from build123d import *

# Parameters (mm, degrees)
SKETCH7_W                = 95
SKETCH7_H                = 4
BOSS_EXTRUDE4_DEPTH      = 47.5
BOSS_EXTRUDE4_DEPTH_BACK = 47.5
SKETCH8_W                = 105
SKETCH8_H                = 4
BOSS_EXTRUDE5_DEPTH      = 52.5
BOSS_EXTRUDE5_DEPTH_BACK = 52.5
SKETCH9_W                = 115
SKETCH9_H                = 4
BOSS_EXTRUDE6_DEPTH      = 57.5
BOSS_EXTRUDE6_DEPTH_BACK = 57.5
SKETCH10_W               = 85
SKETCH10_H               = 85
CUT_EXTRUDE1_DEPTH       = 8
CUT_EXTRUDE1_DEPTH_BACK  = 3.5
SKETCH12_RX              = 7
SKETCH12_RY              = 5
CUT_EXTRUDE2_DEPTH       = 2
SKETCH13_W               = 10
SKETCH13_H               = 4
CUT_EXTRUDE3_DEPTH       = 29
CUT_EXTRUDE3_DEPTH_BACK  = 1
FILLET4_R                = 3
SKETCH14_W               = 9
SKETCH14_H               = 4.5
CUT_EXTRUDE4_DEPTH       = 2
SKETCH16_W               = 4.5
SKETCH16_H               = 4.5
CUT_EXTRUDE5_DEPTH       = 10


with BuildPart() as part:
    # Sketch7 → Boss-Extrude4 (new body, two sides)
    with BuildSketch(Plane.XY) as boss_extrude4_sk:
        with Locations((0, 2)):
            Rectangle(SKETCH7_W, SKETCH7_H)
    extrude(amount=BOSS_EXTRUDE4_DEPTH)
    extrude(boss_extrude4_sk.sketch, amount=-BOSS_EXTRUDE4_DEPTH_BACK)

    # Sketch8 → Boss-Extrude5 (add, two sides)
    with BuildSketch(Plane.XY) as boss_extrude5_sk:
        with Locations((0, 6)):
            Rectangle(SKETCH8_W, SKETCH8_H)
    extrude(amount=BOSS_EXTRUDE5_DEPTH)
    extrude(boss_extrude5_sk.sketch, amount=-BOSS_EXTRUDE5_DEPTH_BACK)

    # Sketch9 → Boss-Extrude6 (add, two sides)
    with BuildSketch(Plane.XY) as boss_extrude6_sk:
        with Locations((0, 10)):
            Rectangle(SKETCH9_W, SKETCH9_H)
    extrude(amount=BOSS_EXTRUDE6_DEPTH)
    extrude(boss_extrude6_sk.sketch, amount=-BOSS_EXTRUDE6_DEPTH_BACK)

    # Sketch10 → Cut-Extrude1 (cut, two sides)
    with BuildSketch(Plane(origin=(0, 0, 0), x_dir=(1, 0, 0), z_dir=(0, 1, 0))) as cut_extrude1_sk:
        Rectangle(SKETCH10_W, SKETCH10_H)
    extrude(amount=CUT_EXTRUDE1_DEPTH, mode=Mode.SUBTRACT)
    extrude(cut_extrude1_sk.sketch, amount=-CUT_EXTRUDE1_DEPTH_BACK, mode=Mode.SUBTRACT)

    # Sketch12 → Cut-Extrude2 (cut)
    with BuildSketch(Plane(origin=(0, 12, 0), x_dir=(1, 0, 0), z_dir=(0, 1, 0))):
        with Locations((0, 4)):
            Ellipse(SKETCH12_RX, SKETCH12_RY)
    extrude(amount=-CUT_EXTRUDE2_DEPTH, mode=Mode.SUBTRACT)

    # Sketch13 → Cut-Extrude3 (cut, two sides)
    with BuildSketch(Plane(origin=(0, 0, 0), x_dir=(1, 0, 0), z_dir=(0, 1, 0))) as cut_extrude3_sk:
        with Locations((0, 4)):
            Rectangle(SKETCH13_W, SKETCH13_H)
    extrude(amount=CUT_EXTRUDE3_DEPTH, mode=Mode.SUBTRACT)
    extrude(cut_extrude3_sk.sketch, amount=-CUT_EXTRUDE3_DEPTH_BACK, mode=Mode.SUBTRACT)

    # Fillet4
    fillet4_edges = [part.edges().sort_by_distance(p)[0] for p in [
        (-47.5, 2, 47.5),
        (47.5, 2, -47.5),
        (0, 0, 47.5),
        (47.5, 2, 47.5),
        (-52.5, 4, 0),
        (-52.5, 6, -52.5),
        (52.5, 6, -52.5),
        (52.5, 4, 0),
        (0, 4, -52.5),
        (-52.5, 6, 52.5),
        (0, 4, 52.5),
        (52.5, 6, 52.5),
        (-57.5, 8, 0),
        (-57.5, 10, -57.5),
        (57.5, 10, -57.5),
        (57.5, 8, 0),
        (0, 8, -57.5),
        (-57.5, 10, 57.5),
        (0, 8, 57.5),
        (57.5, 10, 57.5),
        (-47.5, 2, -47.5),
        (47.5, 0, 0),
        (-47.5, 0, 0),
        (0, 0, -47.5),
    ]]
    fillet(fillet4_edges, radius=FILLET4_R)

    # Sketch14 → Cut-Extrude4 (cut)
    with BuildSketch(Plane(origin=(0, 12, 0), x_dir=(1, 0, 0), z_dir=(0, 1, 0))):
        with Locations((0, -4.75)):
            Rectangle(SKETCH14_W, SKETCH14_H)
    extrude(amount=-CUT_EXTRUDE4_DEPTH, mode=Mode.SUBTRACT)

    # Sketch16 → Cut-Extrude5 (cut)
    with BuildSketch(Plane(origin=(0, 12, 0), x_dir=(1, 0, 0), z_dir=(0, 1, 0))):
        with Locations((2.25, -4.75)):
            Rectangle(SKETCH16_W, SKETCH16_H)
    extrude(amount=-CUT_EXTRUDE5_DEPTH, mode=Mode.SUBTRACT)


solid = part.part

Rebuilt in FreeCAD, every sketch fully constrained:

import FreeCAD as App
import Part
import Sketcher

V = App.Vector


def edges_at(feature, points):
    """Names of the edges that pass closest to the given points."""
    edges = feature.Shape.Edges
    near = lambda p: min(range(len(edges)), key=lambda i: edges[i].distToShape(Part.Vertex(*p))[0])
    return sorted({f"Edge{near(p) + 1}" for p in points})

doc = App.newDocument("Part")
params = doc.addObject("Spreadsheet::Sheet", "Params")
for row, (alias, value) in enumerate([
    ("sketch1_width", "95 mm"),
    ("sketch1_height", "4 mm"),
    ("pad1_length", "47.5 mm"),
    ("pad1_length2", "47.5 mm"),
    ("sketch2_width", "105 mm"),
    ("sketch2_height", "4 mm"),
    ("pad2_length", "52.5 mm"),
    ("pad2_length2", "52.5 mm"),
    ("sketch3_width", "115 mm"),
    ("sketch3_height", "4 mm"),
    ("pad3_length", "57.5 mm"),
    ("pad3_length2", "57.5 mm"),
    ("sketch4_width", "85 mm"),
    ("pocket1_length", "8 mm"),
    ("pocket1_length2", "3.5 mm"),
    ("pocket2_length", "2 mm"),
    ("sketch6_width", "10 mm"),
    ("sketch6_height", "4 mm"),
    ("fillet_radius", "3 mm"),
    ("sketch7_width", "9 mm"),
    ("sketch7_height", "4.5 mm"),
    ("pocket4_length", "2 mm"),
    ("sketch8_width", "4.5 mm"),
    ("pocket5_length", "10 mm"),
], start=1):
    params.set(f"A{row}", alias)
    params.set(f"B{row}", "=" + value)
    params.setAlias(f"B{row}", alias)

body = doc.addObject("PartDesign::Body", "Body")

# Sketch on XY plane
sketch1 = doc.addObject("Sketcher::SketchObject", "Sketch")
body.addObject(sketch1)
sketch1.AttachmentSupport = (doc.XY_Plane, [""])
sketch1.MapMode = "FlatFace"
sketch1.addGeometry([
    Part.LineSegment(V(-47.5, 4, 0), V(-47.5, 0, 0)),
    Part.LineSegment(V(-47.5, 0, 0), V(47.5, 0, 0)),
    Part.LineSegment(V(47.5, 0, 0), V(47.5, 4, 0)),
    Part.LineSegment(V(47.5, 4, 0), V(-47.5, 4, 0)),
], False)
sketch1.addConstraint([
    Sketcher.Constraint("Coincident", 0, 2, 1, 1),
    Sketcher.Constraint("Coincident", 1, 2, 2, 1),
    Sketcher.Constraint("Coincident", 2, 2, 3, 1),
    Sketcher.Constraint("Coincident", 3, 2, 0, 1),
    Sketcher.Constraint("Vertical", 0),
    Sketcher.Constraint("Horizontal", 1),
    Sketcher.Constraint("Vertical", 2),
    Sketcher.Constraint("Horizontal", 3),
    Sketcher.Constraint("Symmetric", 0, 2, 1, 2, -1, 1),
    Sketcher.Constraint("DistanceX", 1, 1, 1, 2, 95.0),
    Sketcher.Constraint("DistanceY", 0, 2, 0, 1, 4.0),
])
sketch1.setExpression("Constraints[9]", "Params.sketch1_width")
sketch1.setExpression("Constraints[10]", "Params.sketch1_height")
pad1 = doc.addObject("PartDesign::Pad", "Pad")
body.addObject(pad1)
pad1.Profile = sketch1
pad1.Type = "TwoLengths"
pad1.setExpression("Length", "Params.pad1_length")
pad1.setExpression("Length2", "Params.pad1_length2")

# Sketch on XY plane
sketch2 = doc.addObject("Sketcher::SketchObject", "Sketch001")
body.addObject(sketch2)
sketch2.AttachmentSupport = (doc.XY_Plane, [""])
sketch2.MapMode = "FlatFace"
sketch2.addGeometry([
    Part.LineSegment(V(-52.5, 8, 0), V(-52.5, 4, 0)),
    Part.LineSegment(V(-52.5, 4, 0), V(52.5, 4, 0)),
    Part.LineSegment(V(52.5, 4, 0), V(52.5, 8, 0)),
    Part.LineSegment(V(52.5, 8, 0), V(-52.5, 8, 0)),
], False)
sketch2.addConstraint([
    Sketcher.Constraint("Coincident", 0, 2, 1, 1),
    Sketcher.Constraint("Coincident", 1, 2, 2, 1),
    Sketcher.Constraint("Coincident", 2, 2, 3, 1),
    Sketcher.Constraint("Coincident", 3, 2, 0, 1),
    Sketcher.Constraint("Vertical", 0),
    Sketcher.Constraint("Horizontal", 1),
    Sketcher.Constraint("Vertical", 2),
    Sketcher.Constraint("Horizontal", 3),
    Sketcher.Constraint("DistanceX", 1, 1, 1, 2, 105.0),
    Sketcher.Constraint("DistanceY", 0, 2, 0, 1, 4.0),
    Sketcher.Constraint("DistanceY", -1, 1, 0, 2, 4.0),
    Sketcher.Constraint("DistanceX", 0, 2, -1, 1, 52.5),
])
sketch2.setExpression("Constraints[8]", "Params.sketch2_width")
sketch2.setExpression("Constraints[9]", "Params.sketch2_height")
pad2 = doc.addObject("PartDesign::Pad", "Pad001")
body.addObject(pad2)
pad2.Profile = sketch2
pad2.Type = "TwoLengths"
pad2.setExpression("Length", "Params.pad2_length")
pad2.setExpression("Length2", "Params.pad2_length2")

# Sketch on XY plane
sketch3 = doc.addObject("Sketcher::SketchObject", "Sketch002")
body.addObject(sketch3)
sketch3.AttachmentSupport = (doc.XY_Plane, [""])
sketch3.MapMode = "FlatFace"
sketch3.addGeometry([
    Part.LineSegment(V(-57.5, 12, 0), V(-57.5, 8, 0)),
    Part.LineSegment(V(-57.5, 8, 0), V(57.5, 8, 0)),
    Part.LineSegment(V(57.5, 8, 0), V(57.5, 12, 0)),
    Part.LineSegment(V(57.5, 12, 0), V(-57.5, 12, 0)),
], False)
sketch3.addConstraint([
    Sketcher.Constraint("Coincident", 0, 2, 1, 1),
    Sketcher.Constraint("Coincident", 1, 2, 2, 1),
    Sketcher.Constraint("Coincident", 2, 2, 3, 1),
    Sketcher.Constraint("Coincident", 3, 2, 0, 1),
    Sketcher.Constraint("Vertical", 0),
    Sketcher.Constraint("Horizontal", 1),
    Sketcher.Constraint("Vertical", 2),
    Sketcher.Constraint("Horizontal", 3),
    Sketcher.Constraint("DistanceX", 1, 1, 1, 2, 115.0),
    Sketcher.Constraint("DistanceY", 0, 2, 0, 1, 4.0),
    Sketcher.Constraint("DistanceY", -1, 1, 0, 2, 8.0),
    Sketcher.Constraint("DistanceX", 0, 2, -1, 1, 57.5),
])
sketch3.setExpression("Constraints[8]", "Params.sketch3_width")
sketch3.setExpression("Constraints[9]", "Params.sketch3_height")
pad3 = doc.addObject("PartDesign::Pad", "Pad002")
body.addObject(pad3)
pad3.Profile = sketch3
pad3.Type = "TwoLengths"
pad3.setExpression("Length", "Params.pad3_length")
pad3.setExpression("Length2", "Params.pad3_length2")

# Sketch on XZ plane
sketch4 = doc.addObject("Sketcher::SketchObject", "Sketch003")
body.addObject(sketch4)
sketch4.AttachmentSupport = (doc.XZ_Plane, [""])
sketch4.MapMode = "FlatFace"
sketch4.addGeometry([
    Part.LineSegment(V(-42, -42, 0), V(-42, 42, 0)),
    Part.LineSegment(V(-42, 42, 0), V(42, 42, 0)),
    Part.LineSegment(V(42, 42, 0), V(42, -42, 0)),
    Part.LineSegment(V(42, -42, 0), V(-42, -42, 0)),
], False)
sketch4.addConstraint([
    Sketcher.Constraint("Coincident", 0, 2, 1, 1),
    Sketcher.Constraint("Coincident", 1, 2, 2, 1),
    Sketcher.Constraint("Coincident", 2, 2, 3, 1),
    Sketcher.Constraint("Coincident", 3, 2, 0, 1),
    Sketcher.Constraint("Vertical", 0),
    Sketcher.Constraint("Horizontal", 1),
    Sketcher.Constraint("Vertical", 2),
    Sketcher.Constraint("Horizontal", 3),
    Sketcher.Constraint("Symmetric", 0, 2, 2, 2, -1, 1),
    Sketcher.Constraint("Equal", 3, 0),
    Sketcher.Constraint("DistanceX", 1, 1, 1, 2, 85.0),
])
sketch4.setExpression("Constraints[10]", "Params.sketch4_width")
pocket1 = doc.addObject("PartDesign::Pocket", "Pocket")
body.addObject(pocket1)
pocket1.Profile = sketch4
pocket1.Type = "TwoLengths"
pocket1.setExpression("Length", "Params.pocket1_length")
pocket1.setExpression("Length2", "Params.pocket1_length2")

# Sketch on XZ plane
sketch5 = doc.addObject("Sketcher::SketchObject", "Sketch004")
body.addObject(sketch5)
sketch5.AttachmentSupport = (doc.XZ_Plane, [""])
sketch5.MapMode = "FlatFace"
sketch5.AttachmentOffset = App.Placement(V(0, 0, -12), App.Rotation())
sketch5.addGeometry(Part.Ellipse(V(7, -4, 0), V(0, 1, 0), V(0, -4, 0)), False)
sketch5.addConstraint(Sketcher.Constraint("Block", 0))
pocket2 = doc.addObject("PartDesign::Pocket", "Pocket001")
body.addObject(pocket2)
pocket2.Profile = sketch5
pocket2.setExpression("Length", "Params.pocket2_length")
pocket2.Reversed = True

# Sketch on XZ plane
sketch6 = doc.addObject("Sketcher::SketchObject", "Sketch005")
body.addObject(sketch6)
sketch6.AttachmentSupport = (doc.XZ_Plane, [""])
sketch6.MapMode = "FlatFace"
sketch6.addGeometry([
    Part.LineSegment(V(-5, -6, 0), V(-5, -2, 0)),
    Part.LineSegment(V(-5, -2, 0), V(5, -2, 0)),
    Part.LineSegment(V(5, -2, 0), V(5, -6, 0)),
    Part.LineSegment(V(5, -6, 0), V(-5, -6, 0)),
], False)
sketch6.addConstraint([
    Sketcher.Constraint("Coincident", 0, 2, 1, 1),
    Sketcher.Constraint("Coincident", 1, 2, 2, 1),
    Sketcher.Constraint("Coincident", 2, 2, 3, 1),
    Sketcher.Constraint("Coincident", 3, 2, 0, 1),
    Sketcher.Constraint("Vertical", 0),
    Sketcher.Constraint("Horizontal", 1),
    Sketcher.Constraint("Vertical", 2),
    Sketcher.Constraint("Horizontal", 3),
    Sketcher.Constraint("DistanceX", 1, 1, 1, 2, 10.0),
    Sketcher.Constraint("DistanceY", 0, 1, 0, 2, 4.0),
    Sketcher.Constraint("DistanceX", 0, 2, -1, 1, 5.0),
    Sketcher.Constraint("DistanceY", 0, 2, -1, 1, 2.0),
])
sketch6.setExpression("Constraints[8]", "Params.sketch6_width")
sketch6.setExpression("Constraints[9]", "Params.sketch6_height")
pocket3 = doc.addObject("PartDesign::Pocket", "Pocket002")
body.addObject(pocket3)
pocket3.Profile = sketch6
pocket3.Type = "ThroughAll"
pocket3.Midplane = True
doc.recompute()

fillet = doc.addObject("PartDesign::Fillet", "Fillet")
body.addObject(fillet)
fillet.Base = (pocket3, edges_at(pocket3, [
    (-47.5, 2, 47.5),
    (47.5, 2, -47.5),
    (0, 0, 47.5),
    (47.5, 2, 47.5),
    (-52.5, 4, 0),
    (-52.5, 6, -52.5),
    (52.5, 6, -52.5),
    (52.5, 4, 0),
    (0, 4, -52.5),
    (-52.5, 6, 52.5),
    (0, 4, 52.5),
    (52.5, 6, 52.5),
    (-57.5, 8, 0),
    (-57.5, 10, -57.5),
    (57.5, 10, -57.5),
    (57.5, 8, 0),
    (0, 8, -57.5),
    (-57.5, 10, 57.5),
    (0, 8, 57.5),
    (57.5, 10, 57.5),
    (-47.5, 2, -47.5),
    (47.5, 0, 0),
    (-47.5, 0, 0),
    (0, 0, -47.5),
]))
fillet.setExpression("Radius", "Params.fillet_radius")

# Sketch on XZ plane
sketch7 = doc.addObject("Sketcher::SketchObject", "Sketch006")
body.addObject(sketch7)
sketch7.AttachmentSupport = (doc.XZ_Plane, [""])
sketch7.MapMode = "FlatFace"
sketch7.AttachmentOffset = App.Placement(V(0, 0, -12), App.Rotation())
sketch7.addGeometry([
    Part.LineSegment(V(-4.5, 2.5, 0), V(-4.5, 7, 0)),
    Part.LineSegment(V(-4.5, 7, 0), V(4.5, 7, 0)),
    Part.LineSegment(V(4.5, 7, 0), V(4.5, 2.5, 0)),
    Part.LineSegment(V(4.5, 2.5, 0), V(-4.5, 2.5, 0)),
], False)
sketch7.addConstraint([
    Sketcher.Constraint("Coincident", 0, 2, 1, 1),
    Sketcher.Constraint("Coincident", 1, 2, 2, 1),
    Sketcher.Constraint("Coincident", 2, 2, 3, 1),
    Sketcher.Constraint("Coincident", 3, 2, 0, 1),
    Sketcher.Constraint("Vertical", 0),
    Sketcher.Constraint("Horizontal", 1),
    Sketcher.Constraint("Vertical", 2),
    Sketcher.Constraint("Horizontal", 3),
    Sketcher.Constraint("DistanceX", 1, 1, 1, 2, 9.0),
    Sketcher.Constraint("DistanceY", 0, 1, 0, 2, 4.5),
    Sketcher.Constraint("DistanceY", -1, 1, 0, 2, 7.0),
    Sketcher.Constraint("DistanceX", 0, 2, -1, 1, 4.5),
])
sketch7.setExpression("Constraints[8]", "Params.sketch7_width")
sketch7.setExpression("Constraints[9]", "Params.sketch7_height")
pocket4 = doc.addObject("PartDesign::Pocket", "Pocket003")
body.addObject(pocket4)
pocket4.Profile = sketch7
pocket4.setExpression("Length", "Params.pocket4_length")
pocket4.Reversed = True

# Sketch on XZ plane
sketch8 = doc.addObject("Sketcher::SketchObject", "Sketch007")
body.addObject(sketch8)
sketch8.AttachmentSupport = (doc.XZ_Plane, [""])
sketch8.MapMode = "FlatFace"
sketch8.AttachmentOffset = App.Placement(V(0, 0, -12), App.Rotation())
sketch8.addGeometry([
    Part.LineSegment(V(0, 2.5, 0), V(0, 7, 0)),
    Part.LineSegment(V(0, 7, 0), V(4.5, 7, 0)),
    Part.LineSegment(V(4.5, 7, 0), V(4.5, 2.5, 0)),
    Part.LineSegment(V(4.5, 2.5, 0), V(0, 2.5, 0)),
], False)
sketch8.addConstraint([
    Sketcher.Constraint("Coincident", 0, 2, 1, 1),
    Sketcher.Constraint("Coincident", 1, 2, 2, 1),
    Sketcher.Constraint("Coincident", 2, 2, 3, 1),
    Sketcher.Constraint("Coincident", 3, 2, 0, 1),
    Sketcher.Constraint("Vertical", 0),
    Sketcher.Constraint("Horizontal", 1),
    Sketcher.Constraint("Vertical", 2),
    Sketcher.Constraint("Horizontal", 3),
    Sketcher.Constraint("PointOnObject", 0, 2, -2),
    Sketcher.Constraint("Equal", 3, 0),
    Sketcher.Constraint("DistanceX", 1, 1, 1, 2, 4.5),
    Sketcher.Constraint("DistanceY", -1, 1, 0, 2, 7.0),
])
sketch8.setExpression("Constraints[10]", "Params.sketch8_width")
pocket5 = doc.addObject("PartDesign::Pocket", "Pocket004")
body.addObject(pocket5)
pocket5.Profile = sketch8
pocket5.setExpression("Length", "Params.pocket5_length")
pocket5.Reversed = True

doc.recompute()
